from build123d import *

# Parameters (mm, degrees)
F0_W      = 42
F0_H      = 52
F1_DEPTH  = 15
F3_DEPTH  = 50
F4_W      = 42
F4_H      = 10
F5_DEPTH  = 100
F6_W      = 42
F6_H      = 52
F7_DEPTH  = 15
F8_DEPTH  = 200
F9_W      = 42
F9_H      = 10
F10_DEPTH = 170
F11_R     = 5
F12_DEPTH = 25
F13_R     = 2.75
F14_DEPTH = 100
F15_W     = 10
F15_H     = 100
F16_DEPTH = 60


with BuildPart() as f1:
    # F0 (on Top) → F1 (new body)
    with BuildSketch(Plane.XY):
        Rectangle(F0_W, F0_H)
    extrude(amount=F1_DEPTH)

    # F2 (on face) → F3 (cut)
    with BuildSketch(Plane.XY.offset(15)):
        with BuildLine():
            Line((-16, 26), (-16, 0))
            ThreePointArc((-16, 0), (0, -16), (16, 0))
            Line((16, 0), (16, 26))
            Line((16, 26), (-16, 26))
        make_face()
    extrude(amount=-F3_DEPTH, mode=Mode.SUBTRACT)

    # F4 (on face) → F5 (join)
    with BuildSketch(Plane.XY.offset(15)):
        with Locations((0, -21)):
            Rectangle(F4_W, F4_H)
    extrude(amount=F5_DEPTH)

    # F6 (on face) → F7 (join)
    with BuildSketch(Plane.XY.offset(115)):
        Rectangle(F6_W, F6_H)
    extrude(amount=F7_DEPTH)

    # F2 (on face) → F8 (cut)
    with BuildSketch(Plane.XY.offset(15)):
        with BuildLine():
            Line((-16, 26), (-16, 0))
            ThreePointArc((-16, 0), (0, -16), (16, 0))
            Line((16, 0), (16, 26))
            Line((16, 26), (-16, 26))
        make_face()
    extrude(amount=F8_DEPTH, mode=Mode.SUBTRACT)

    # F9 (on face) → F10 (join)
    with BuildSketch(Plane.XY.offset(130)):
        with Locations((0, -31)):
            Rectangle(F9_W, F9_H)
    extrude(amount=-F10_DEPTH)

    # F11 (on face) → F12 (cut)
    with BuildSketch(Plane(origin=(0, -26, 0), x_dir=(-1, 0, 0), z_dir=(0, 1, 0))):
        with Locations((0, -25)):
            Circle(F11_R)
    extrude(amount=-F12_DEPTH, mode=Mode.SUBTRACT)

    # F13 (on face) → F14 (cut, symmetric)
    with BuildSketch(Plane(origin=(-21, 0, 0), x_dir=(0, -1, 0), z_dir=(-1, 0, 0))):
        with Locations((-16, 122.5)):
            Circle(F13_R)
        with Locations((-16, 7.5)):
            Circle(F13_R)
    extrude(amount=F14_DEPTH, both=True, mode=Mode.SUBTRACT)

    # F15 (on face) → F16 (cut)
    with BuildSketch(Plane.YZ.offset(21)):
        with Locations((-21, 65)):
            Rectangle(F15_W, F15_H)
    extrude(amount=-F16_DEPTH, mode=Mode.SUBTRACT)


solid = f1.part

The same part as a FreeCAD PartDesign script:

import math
import FreeCAD as App
import Part
import Sketcher
from FreeCAD import Vector


def add_polygon(sketch, points):
    """Adds a closed chain of lines whose ends are joined by coincident constraints."""
    first, n = sketch.GeometryCount, len(points)
    for a, b in zip(points, points[1:] + points[:1]):
        sketch.addGeometry(Part.LineSegment(App.Vector(*a, 0), App.Vector(*b, 0)), False)
    for i in range(n):
        sketch.addConstraint(Sketcher.Constraint("Coincident", first + i, 2, first + (i + 1) % n, 1))

doc = App.newDocument("Part")
body = doc.addObject("PartDesign::Body", "Body")

sketch1 = doc.addObject("Sketcher::SketchObject", "Sketch")
body.addObject(sketch1)
sketch1.AttachmentSupport = (doc.XY_Plane, [""])
sketch1.MapMode = "FlatFace"
add_polygon(sketch1, [(-21, 26), (-21, -26), (21, -26), (21, 26)])
sketch1.addConstraint(Sketcher.Constraint("Vertical", 0))
sketch1.addConstraint(Sketcher.Constraint("Horizontal", 1))
sketch1.addConstraint(Sketcher.Constraint("Vertical", 2))
sketch1.addConstraint(Sketcher.Constraint("Horizontal", 3))
sketch1.addConstraint(Sketcher.Constraint("Symmetric", 0, 2, 2, 2, -1, 1))
sketch1.addConstraint(Sketcher.Constraint("DistanceX", 1, 1, 1, 2, 42.0))
sketch1.addConstraint(Sketcher.Constraint("DistanceY", 0, 2, 0, 1, 52.0))
pad1 = doc.addObject("PartDesign::Pad", "Pad")
body.addObject(pad1)
pad1.Profile = sketch1
pad1.Length = 15

sketch2 = doc.addObject("Sketcher::SketchObject", "Sketch001")
body.addObject(sketch2)
sketch2.AttachmentSupport = (doc.XY_Plane, [""])
sketch2.MapMode = "FlatFace"
sketch2.AttachmentOffset = App.Placement(Vector(0, 0, 15), App.Rotation())
sketch2.addGeometry(Part.LineSegment(Vector(-16, 26, 0), Vector(-16, 0, 0)), False)
sketch2.addGeometry(Part.ArcOfCircle(Part.Circle(Vector(0, 0, 0), Vector(0, 0, 1), 16), math.radians(180), math.radians(360)), False)
sketch2.addGeometry(Part.LineSegment(Vector(16, 0, 0), Vector(16, 26, 0)), False)
sketch2.addGeometry(Part.LineSegment(Vector(16, 26, 0), Vector(-16, 26, 0)), False)
sketch2.addConstraint(Sketcher.Constraint("Tangent", 0, 2, 1, 1))
sketch2.addConstraint(Sketcher.Constraint("Tangent", 1, 2, 2, 1))
sketch2.addConstraint(Sketcher.Constraint("Coincident", 2, 2, 3, 1))
sketch2.addConstraint(Sketcher.Constraint("Coincident", 3, 2, 0, 1))
sketch2.addConstraint(Sketcher.Constraint("Vertical", 0))
sketch2.addConstraint(Sketcher.Constraint("Vertical", 2))
sketch2.addConstraint(Sketcher.Constraint("Horizontal", 3))
sketch2.addConstraint(Sketcher.Constraint("Coincident", 1, 3, -1, 1))
sketch2.addConstraint(Sketcher.Constraint("Radius", 1, 16.0))
sketch2.addConstraint(Sketcher.Constraint("DistanceY", 0, 2, 0, 1, 26.0))
pocket1 = doc.addObject("PartDesign::Pocket", "Pocket")
body.addObject(pocket1)
pocket1.Profile = sketch2
pocket1.Length = 50

sketch3 = doc.addObject("Sketcher::SketchObject", "Sketch002")
body.addObject(sketch3)
sketch3.AttachmentSupport = (doc.XY_Plane, [""])
sketch3.MapMode = "FlatFace"
sketch3.AttachmentOffset = App.Placement(Vector(0, 0, 15), App.Rotation())
add_polygon(sketch3, [(-21, -16), (-21, -26), (21, -26), (21, -16)])
sketch3.addConstraint(Sketcher.Constraint("Vertical", 0))
sketch3.addConstraint(Sketcher.Constraint("Horizontal", 1))
sketch3.addConstraint(Sketcher.Constraint("Vertical", 2))
sketch3.addConstraint(Sketcher.Constraint("Horizontal", 3))
sketch3.addConstraint(Sketcher.Constraint("DistanceX", 1, 1, 1, 2, 42.0))
sketch3.addConstraint(Sketcher.Constraint("DistanceY", 0, 2, 0, 1, 10.0))
sketch3.addConstraint(Sketcher.Constraint("DistanceX", 0, 2, -1, 1, 21.0))
sketch3.addConstraint(Sketcher.Constraint("DistanceY", 0, 2, -1, 1, 26.0))
pad2 = doc.addObject("PartDesign::Pad", "Pad001")
body.addObject(pad2)
pad2.Profile = sketch3
pad2.Length = 100

sketch4 = doc.addObject("Sketcher::SketchObject", "Sketch003")
body.addObject(sketch4)
sketch4.AttachmentSupport = (doc.XY_Plane, [""])
sketch4.MapMode = "FlatFace"
sketch4.AttachmentOffset = App.Placement(Vector(0, 0, 115), App.Rotation())
add_polygon(sketch4, [(-21, 26), (-21, -26), (21, -26), (21, 26)])
sketch4.addConstraint(Sketcher.Constraint("Vertical", 0))
sketch4.addConstraint(Sketcher.Constraint("Horizontal", 1))
sketch4.addConstraint(Sketcher.Constraint("Vertical", 2))
sketch4.addConstraint(Sketcher.Constraint("Horizontal", 3))
sketch4.addConstraint(Sketcher.Constraint("Symmetric", 0, 2, 2, 2, -1, 1))
sketch4.addConstraint(Sketcher.Constraint("DistanceX", 1, 1, 1, 2, 42.0))
sketch4.addConstraint(Sketcher.Constraint("DistanceY", 0, 2, 0, 1, 52.0))
pad3 = doc.addObject("PartDesign::Pad", "Pad002")
body.addObject(pad3)
pad3.Profile = sketch4
pad3.Length = 15

sketch5 = doc.addObject("Sketcher::SketchObject", "Sketch004")
body.addObject(sketch5)
sketch5.AttachmentSupport = (doc.XY_Plane, [""])
sketch5.MapMode = "FlatFace"
sketch5.AttachmentOffset = App.Placement(Vector(0, 0, 15), App.Rotation())
sketch5.addGeometry(Part.LineSegment(Vector(-16, 26, 0), Vector(-16, 0, 0)), False)
sketch5.addGeometry(Part.ArcOfCircle(Part.Circle(Vector(0, 0, 0), Vector(0, 0, 1), 16), math.radians(180), math.radians(360)), False)
sketch5.addGeometry(Part.LineSegment(Vector(16, 0, 0), Vector(16, 26, 0)), False)
sketch5.addGeometry(Part.LineSegment(Vector(16, 26, 0), Vector(-16, 26, 0)), False)
sketch5.addConstraint(Sketcher.Constraint("Tangent", 0, 2, 1, 1))
sketch5.addConstraint(Sketcher.Constraint("Tangent", 1, 2, 2, 1))
sketch5.addConstraint(Sketcher.Constraint("Coincident", 2, 2, 3, 1))
sketch5.addConstraint(Sketcher.Constraint("Coincident", 3, 2, 0, 1))
sketch5.addConstraint(Sketcher.Constraint("Vertical", 0))
sketch5.addConstraint(Sketcher.Constraint("Vertical", 2))
sketch5.addConstraint(Sketcher.Constraint("Horizontal", 3))
sketch5.addConstraint(Sketcher.Constraint("Coincident", 1, 3, -1, 1))
sketch5.addConstraint(Sketcher.Constraint("Radius", 1, 16.0))
sketch5.addConstraint(Sketcher.Constraint("DistanceY", 0, 2, 0, 1, 26.0))
pocket2 = doc.addObject("PartDesign::Pocket", "Pocket001")
body.addObject(pocket2)
pocket2.Profile = sketch5
pocket2.Length = 200
pocket2.Reversed = True

sketch6 = doc.addObject("Sketcher::SketchObject", "Sketch005")
body.addObject(sketch6)
sketch6.AttachmentSupport = (doc.XY_Plane, [""])
sketch6.MapMode = "FlatFace"
sketch6.AttachmentOffset = App.Placement(Vector(0, 0, 130), App.Rotation())
add_polygon(sketch6, [(-21, -26), (-21, -36), (21, -36), (21, -26)])
sketch6.addConstraint(Sketcher.Constraint("Vertical", 0))
sketch6.addConstraint(Sketcher.Constraint("Horizontal", 1))
sketch6.addConstraint(Sketcher.Constraint("Vertical", 2))
sketch6.addConstraint(Sketcher.Constraint("Horizontal", 3))
sketch6.addConstraint(Sketcher.Constraint("DistanceX", 1, 1, 1, 2, 42.0))
sketch6.addConstraint(Sketcher.Constraint("DistanceY", 0, 2, 0, 1, 10.0))
sketch6.addConstraint(Sketcher.Constraint("DistanceX", 0, 2, -1, 1, 21.0))
sketch6.addConstraint(Sketcher.Constraint("DistanceY", 0, 2, -1, 1, 36.0))
pad4 = doc.addObject("PartDesign::Pad", "Pad003")
body.addObject(pad4)
pad4.Profile = sketch6
pad4.Length = 170
pad4.Reversed = True

sketch7 = doc.addObject("Sketcher::SketchObject", "Sketch006")
body.addObject(sketch7)
sketch7.AttachmentSupport = (doc.XZ_Plane, [""])
sketch7.MapMode = "FlatFace"
sketch7.AttachmentOffset = App.Placement(Vector(0, 0, 26), App.Rotation())
sketch7.addGeometry(Part.Circle(Vector(0, -25, 0), Vector(0, 0, 1), 5), False)
sketch7.addConstraint(Sketcher.Constraint("PointOnObject", 0, 3, -2))
sketch7.addConstraint(Sketcher.Constraint("Diameter", 0, 10.0))
sketch7.addConstraint(Sketcher.Constraint("DistanceY", 0, 3, -1, 1, 25.0))
pocket3 = doc.addObject("PartDesign::Pocket", "Pocket002")
body.addObject(pocket3)
pocket3.Profile = sketch7
pocket3.Length = 25
pocket3.Reversed = True

sketch8 = doc.addObject("Sketcher::SketchObject", "Sketch007")
body.addObject(sketch8)
sketch8.AttachmentSupport = (doc.YZ_Plane, [""])
sketch8.MapMode = "FlatFace"
sketch8.AttachmentOffset = App.Placement(Vector(0, 0, -21), App.Rotation())
sketch8.addGeometry(Part.Circle(Vector(16, 122.5, 0), Vector(0, 0, 1), 2.8), False)
sketch8.addGeometry(Part.Circle(Vector(16, 7.5, 0), Vector(0, 0, 1), 2.8), False)
sketch8.addConstraint(Sketcher.Constraint("Equal", 0, 1))
sketch8.addConstraint(Sketcher.Constraint("Vertical", 0, 3, 1, 3))
sketch8.addConstraint(Sketcher.Constraint("Diameter", 0, 5.5))
sketch8.addConstraint(Sketcher.Constraint("DistanceX", -1, 1, 0, 3, 16.0))
sketch8.addConstraint(Sketcher.Constraint("DistanceY", 1, 3, 0, 3, 115.0))
sketch8.addConstraint(Sketcher.Constraint("DistanceY", -1, 1, 0, 3, 122.5))
pocket4 = doc.addObject("PartDesign::Pocket", "Pocket003")
body.addObject(pocket4)
pocket4.Profile = sketch8
pocket4.Length = 200
pocket4.Midplane = True

sketch9 = doc.addObject("Sketcher::SketchObject", "Sketch008")
body.addObject(sketch9)
sketch9.AttachmentSupport = (doc.YZ_Plane, [""])
sketch9.MapMode = "FlatFace"
sketch9.AttachmentOffset = App.Placement(Vector(0, 0, 21), App.Rotation())
add_polygon(sketch9, [(-26, 115), (-26, 15), (-16, 15), (-16, 115)])
sketch9.addConstraint(Sketcher.Constraint("Vertical", 0))
sketch9.addConstraint(Sketcher.Constraint("Horizontal", 1))
sketch9.addConstraint(Sketcher.Constraint("Vertical", 2))
sketch9.addConstraint(Sketcher.Constraint("Horizontal", 3))
sketch9.addConstraint(Sketcher.Constraint("DistanceX", 1, 1, 1, 2, 10.0))
sketch9.addConstraint(Sketcher.Constraint("DistanceY", 0, 2, 0, 1, 100.0))
sketch9.addConstraint(Sketcher.Constraint("DistanceX", 0, 2, -1, 1, 26.0))
sketch9.addConstraint(Sketcher.Constraint("DistanceY", -1, 1, 0, 2, 15.0))
pocket5 = doc.addObject("PartDesign::Pocket", "Pocket004")
body.addObject(pocket5)
pocket5.Profile = sketch9
pocket5.Length = 60

doc.recompute()
